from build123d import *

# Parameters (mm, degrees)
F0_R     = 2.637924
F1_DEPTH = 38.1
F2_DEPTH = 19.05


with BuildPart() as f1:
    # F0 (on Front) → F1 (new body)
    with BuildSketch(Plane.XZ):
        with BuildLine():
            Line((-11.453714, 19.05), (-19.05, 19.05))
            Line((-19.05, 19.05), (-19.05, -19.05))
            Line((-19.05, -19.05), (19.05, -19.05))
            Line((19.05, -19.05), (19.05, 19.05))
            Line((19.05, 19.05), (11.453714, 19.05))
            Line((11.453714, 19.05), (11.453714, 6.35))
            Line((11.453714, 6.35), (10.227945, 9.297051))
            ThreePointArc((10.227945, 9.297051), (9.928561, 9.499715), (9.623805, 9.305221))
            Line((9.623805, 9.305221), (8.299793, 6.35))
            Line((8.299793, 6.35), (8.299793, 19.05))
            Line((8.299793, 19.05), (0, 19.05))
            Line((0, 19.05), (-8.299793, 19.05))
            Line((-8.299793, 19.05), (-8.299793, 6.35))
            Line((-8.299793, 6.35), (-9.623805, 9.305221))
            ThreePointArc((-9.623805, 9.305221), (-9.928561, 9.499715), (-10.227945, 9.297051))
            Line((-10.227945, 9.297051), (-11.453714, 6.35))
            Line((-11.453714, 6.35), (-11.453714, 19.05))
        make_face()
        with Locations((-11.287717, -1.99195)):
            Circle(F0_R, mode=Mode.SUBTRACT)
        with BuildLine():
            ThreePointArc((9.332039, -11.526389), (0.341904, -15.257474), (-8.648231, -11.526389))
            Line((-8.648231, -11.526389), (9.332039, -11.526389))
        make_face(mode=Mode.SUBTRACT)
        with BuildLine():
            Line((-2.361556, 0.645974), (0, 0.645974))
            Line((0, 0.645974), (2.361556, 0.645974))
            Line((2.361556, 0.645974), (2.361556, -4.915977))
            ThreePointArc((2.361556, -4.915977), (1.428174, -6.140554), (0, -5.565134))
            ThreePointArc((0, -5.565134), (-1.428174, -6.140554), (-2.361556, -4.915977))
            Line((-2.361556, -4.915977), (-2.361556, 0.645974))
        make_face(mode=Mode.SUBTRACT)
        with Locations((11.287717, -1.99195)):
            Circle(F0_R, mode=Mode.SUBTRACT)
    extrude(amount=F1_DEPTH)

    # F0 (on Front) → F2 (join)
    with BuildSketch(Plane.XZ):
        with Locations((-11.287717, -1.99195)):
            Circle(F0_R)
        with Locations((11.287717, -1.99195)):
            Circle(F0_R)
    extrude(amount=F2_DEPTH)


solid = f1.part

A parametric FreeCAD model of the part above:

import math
import FreeCAD as App
import Part
import Sketcher
from FreeCAD import Vector
Q = App.Units.Quantity

doc = App.newDocument("Part")
body = doc.addObject("PartDesign::Body", "Body")

sketch1 = body.newObject("Sketcher::SketchObject", "Sketch")
sketch1.AttachmentSupport = (doc.getObject("XZ_Plane"), [""])
sketch1.MapMode = "FlatFace"
sketch1.addGeometry(Part.LineSegment(Vector(-11.45, 19.05, 0), Vector(-19.05, 19.05, 0)), False)
sketch1.addGeometry(Part.LineSegment(Vector(-19.05, 19.05, 0), Vector(-19.05, -19.05, 0)), False)
sketch1.addGeometry(Part.LineSegment(Vector(-19.05, -19.05, 0), Vector(19.05, -19.05, 0)), False)
sketch1.addGeometry(Part.LineSegment(Vector(19.05, -19.05, 0), Vector(19.05, 19.05, 0)), False)
sketch1.addGeometry(Part.LineSegment(Vector(19.05, 19.05, 0), Vector(11.45, 19.05, 0)), False)
sketch1.addGeometry(Part.LineSegment(Vector(11.45, 19.05, 0), Vector(11.45, 6.35, 0)), False)
sketch1.addGeometry(Part.LineSegment(Vector(11.45, 6.35, 0), Vector(10.23, 9.3, 0)), False)
sketch1.addGeometry(Part.ArcOfCircle(Part.Circle(Vector(9.92, 9.17, 0), Vector(0, 0, 1), 0.33), math.radians(23), math.radians(156)), False)
sketch1.addGeometry(Part.LineSegment(Vector(9.62, 9.31, 0), Vector(8.3, 6.35, 0)), False)
sketch1.addGeometry(Part.LineSegment(Vector(8.3, 6.35, 0), Vector(8.3, 19.05, 0)), False)
sketch1.addGeometry(Part.LineSegment(Vector(8.3, 19.05, 0), Vector(-8.3, 19.05, 0)), False)
sketch1.addGeometry(Part.LineSegment(Vector(-8.3, 19.05, 0), Vector(-8.3, 6.35, 0)), False)
sketch1.addGeometry(Part.LineSegment(Vector(-8.3, 6.35, 0), Vector(-9.62, 9.31, 0)), False)
sketch1.addGeometry(Part.ArcOfCircle(Part.Circle(Vector(-9.92, 9.17, 0), Vector(0, 0, 1), 0.33), math.radians(24), math.radians(157)), False)
sketch1.addGeometry(Part.LineSegment(Vector(-10.23, 9.3, 0), Vector(-11.45, 6.35, 0)), False)
sketch1.addGeometry(Part.LineSegment(Vector(-11.45, 6.35, 0), Vector(-11.45, 19.05, 0)), False)
sketch1.addGeometry(Part.LineSegment(Vector(-8.65, -11.53, 0), Vector(9.33, -11.53, 0)), False)
sketch1.addGeometry(Part.ArcOfCircle(Part.Circle(Vector(0.34, -2.56, 0), Vector(0, 0, 1), 12.7), math.radians(-135), math.radians(-45)), False)
sketch1.addGeometry(Part.Circle(Vector(-11.29, -1.99, 0), Vector(0, 0, 1), 2.64), False)
sketch1.addGeometry(Part.LineSegment(Vector(-2.36, -4.92, 0), Vector(-2.36, 0.65, 0)), False)
sketch1.addGeometry(Part.LineSegment(Vector(-2.36, 0.65, 0), Vector(2.36, 0.65, 0)), False)
sketch1.addGeometry(Part.LineSegment(Vector(2.36, 0.65, 0), Vector(2.36, -4.92, 0)), False)
sketch1.addGeometry(Part.ArcOfCircle(Part.Circle(Vector(1.09, -4.92, 0), Vector(0, 0, 1), 1.27), math.radians(-149), math.radians(0)), False)
sketch1.addGeometry(Part.ArcOfCircle(Part.Circle(Vector(-1.09, -4.92, 0), Vector(0, 0, 1), 1.27), math.radians(180), math.radians(329)), False)
sketch1.addGeometry(Part.Circle(Vector(11.29, -1.99, 0), Vector(0, 0, 1), 2.64), False)
sketch1.addConstraint(Sketcher.Constraint("Coincident", 0, 2, 1, 1))
sketch1.addConstraint(Sketcher.Constraint("Coincident", 1, 2, 2, 1))
sketch1.addConstraint(Sketcher.Constraint("Coincident", 2, 2, 3, 1))
sketch1.addConstraint(Sketcher.Constraint("Coincident", 3, 2, 4, 1))
sketch1.addConstraint(Sketcher.Constraint("Coincident", 4, 2, 5, 1))
sketch1.addConstraint(Sketcher.Constraint("Coincident", 5, 2, 6, 1))
sketch1.addConstraint(Sketcher.Constraint("Tangent", 6, 2, 7, 1))
sketch1.addConstraint(Sketcher.Constraint("Coincident", 7, 2, 8, 1))
sketch1.addConstraint(Sketcher.Constraint("Coincident", 8, 2, 9, 1))
sketch1.addConstraint(Sketcher.Constraint("Coincident", 9, 2, 10, 1))
sketch1.addConstraint(Sketcher.Constraint("Coincident", 10, 2, 11, 1))
sketch1.addConstraint(Sketcher.Constraint("Coincident", 11, 2, 12, 1))
sketch1.addConstraint(Sketcher.Constraint("Coincident", 12, 2, 13, 1))
sketch1.addConstraint(Sketcher.Constraint("Tangent", 13, 2, 14, 1))
sketch1.addConstraint(Sketcher.Constraint("Coincident", 14, 2, 15, 1))
sketch1.addConstraint(Sketcher.Constraint("Coincident", 15, 2, 0, 1))
sketch1.addConstraint(Sketcher.Constraint("Coincident", 16, 1, 17, 1))
sketch1.addConstraint(Sketcher.Constraint("Coincident", 17, 2, 16, 2))
sketch1.addConstraint(Sketcher.Constraint("Coincident", 19, 2, 20, 1))
sketch1.addConstraint(Sketcher.Constraint("Coincident", 20, 2, 21, 1))
sketch1.addConstraint(Sketcher.Constraint("Tangent", 21, 2, 22, 2))
sketch1.addConstraint(Sketcher.Constraint("Coincident", 22, 1, 23, 2))
sketch1.addConstraint(Sketcher.Constraint("Tangent", 23, 1, 19, 1))
sketch1.addConstraint(Sketcher.Constraint("Horizontal", 0))
sketch1.addConstraint(Sketcher.Constraint("Vertical", 1))
sketch1.addConstraint(Sketcher.Constraint("Horizontal", 2))
sketch1.addConstraint(Sketcher.Constraint("Vertical", 3))
sketch1.addConstraint(Sketcher.Constraint("Horizontal", 4))
sketch1.addConstraint(Sketcher.Constraint("Vertical", 5))
sketch1.addConstraint(Sketcher.Constraint("Vertical", 9))
sketch1.addConstraint(Sketcher.Constraint("Horizontal", 10))
sketch1.addConstraint(Sketcher.Constraint("Vertical", 11))
sketch1.addConstraint(Sketcher.Constraint("Vertical", 15))
sketch1.addConstraint(Sketcher.Constraint("Horizontal", 16))
sketch1.addConstraint(Sketcher.Constraint("Vertical", 19))
sketch1.addConstraint(Sketcher.Constraint("Horizontal", 20))
sketch1.addConstraint(Sketcher.Constraint("Vertical", 21))
sketch1.addConstraint(Sketcher.Constraint("Equal", 7, 13))
sketch1.addConstraint(Sketcher.Constraint("Equal", 22, 23))
sketch1.addConstraint(Sketcher.Constraint("Equal", 18, 24))
sketch1.addConstraint(Sketcher.Constraint("Symmetric", 0, 2, 2, 2, -1, 1))
sketch1.addConstraint(Sketcher.Constraint("Symmetric", 7, 3, 13, 3, -2))
sketch1.addConstraint(Sketcher.Constraint("Symmetric", 22, 3, 23, 3, -2))
sketch1.addConstraint(Sketcher.Constraint("Symmetric", 18, 3, 24, 3, -2))
sketch1.addConstraint(Sketcher.Constraint("Symmetric", 8, 2, 11, 2, -2))
sketch1.addConstraint(Sketcher.Constraint("Symmetric", 5, 2, 14, 2, -2))
sketch1.addConstraint(Sketcher.Constraint("Horizontal", 0, 2, 3, 2))
sketch1.addConstraint(Sketcher.Constraint("Horizontal", 5, 2, 8, 2))
sketch1.addConstraint(Sketcher.Constraint("Horizontal", 4, 2, 9, 2))
sketch1.addConstraint(Sketcher.Constraint("Horizontal", 7, 2, 12, 2))
sketch1.addConstraint(Sketcher.Constraint("Equal", 2, 1))
sketch1.addConstraint(Sketcher.Constraint("Radius", 22, Q("0.05 in")))
sketch1.addConstraint(Sketcher.Constraint("DistanceX", 2, 1, 2, 2, Q("1.5 in")))
sketch1.addConstraint(Sketcher.Constraint("DistanceY", 5, 2, 5, 1, Q("0.5 in")))
sketch1.addConstraint(Sketcher.Constraint("Radius", 17, Q("12.696511 mm")))
sketch1.addConstraint(Sketcher.Constraint("Diameter", 18, Q("5.275848 mm")))
sketch1.addConstraint(Sketcher.Constraint("Radius", 7, Q("0.329068 mm")))
sketch1.addConstraint(Sketcher.Constraint("DistanceX", 16, 1, 16, 2, Q("17.98027 mm")))
sketch1.addConstraint(Sketcher.Constraint("DistanceY", 19, 1, 19, 2, Q("5.561951 mm")))
sketch1.addConstraint(Sketcher.Constraint("DistanceY", 24, 3, 6, 2, Q("11.289001 mm")))
sketch1.addConstraint(Sketcher.Constraint("DistanceX", 10, 2, 7, 2, Q("17.923598 mm")))
sketch1.addConstraint(Sketcher.Constraint("Distance", 8, Q("3.238262 mm")))
sketch1.addConstraint(Sketcher.Constraint("DistanceX", 0, 2, 0, 1, Q("7.596286 mm")))
sketch1.addConstraint(Sketcher.Constraint("DistanceX", 10, 2, 10, 1, Q("16.599586 mm")))
sketch1.addConstraint(Sketcher.Constraint("DistanceX", 20, 1, 20, 2, Q("4.723112 mm")))
sketch1.addConstraint(Sketcher.Constraint("DistanceX", -1, 1, 7, 3, Q("9.924111 mm")))
sketch1.addConstraint(Sketcher.Constraint("DistanceX", 16, 1, -1, 1, Q("8.648231 mm")))
sketch1.addConstraint(Sketcher.Constraint("DistanceY", 16, 1, -1, 1, Q("11.526389 mm")))
sketch1.addConstraint(Sketcher.Constraint("DistanceX", 18, 3, 17, 3, Q("11.629621 mm")))
sketch1.addConstraint(Sketcher.Constraint("DistanceY", 16, 1, 23, 3, Q("6.610412 mm")))
pad1 = body.newObject("PartDesign::Pad", "Pad")
pad1.Profile = sketch1
pad1.Length = Q("1.5 in")

sketch2 = body.newObject("Sketcher::SketchObject", "Sketch001")
sketch2.AttachmentSupport = (doc.getObject("XZ_Plane"), [""])
sketch2.MapMode = "FlatFace"
sketch2.addGeometry(Part.Circle(Vector(-11.3, -2, 0), Vector(0, 0, 1), 2.6), False)
sketch2.addGeometry(Part.Circle(Vector(11.3, -2, 0), Vector(0, 0, 1), 2.6), False)
sketch2.addConstraint(Sketcher.Constraint("Equal", 0, 1))
sketch2.addConstraint(Sketcher.Constraint("Symmetric", 0, 3, 1, 3, -2))
sketch2.addConstraint(Sketcher.Constraint("Diameter", 0, Q("5.275848 mm")))
sketch2.addConstraint(Sketcher.Constraint("DistanceY", 0, 3, -1, 1, Q("1.99195 mm")))
sketch2.addConstraint(Sketcher.Constraint("DistanceX", 0, 3, -1, 1, Q("11.287717 mm")))
pad2 = body.newObject("PartDesign::Pad", "Pad001")
pad2.Profile = sketch2
pad2.Length = Q("0.75 in")

doc.recompute()
